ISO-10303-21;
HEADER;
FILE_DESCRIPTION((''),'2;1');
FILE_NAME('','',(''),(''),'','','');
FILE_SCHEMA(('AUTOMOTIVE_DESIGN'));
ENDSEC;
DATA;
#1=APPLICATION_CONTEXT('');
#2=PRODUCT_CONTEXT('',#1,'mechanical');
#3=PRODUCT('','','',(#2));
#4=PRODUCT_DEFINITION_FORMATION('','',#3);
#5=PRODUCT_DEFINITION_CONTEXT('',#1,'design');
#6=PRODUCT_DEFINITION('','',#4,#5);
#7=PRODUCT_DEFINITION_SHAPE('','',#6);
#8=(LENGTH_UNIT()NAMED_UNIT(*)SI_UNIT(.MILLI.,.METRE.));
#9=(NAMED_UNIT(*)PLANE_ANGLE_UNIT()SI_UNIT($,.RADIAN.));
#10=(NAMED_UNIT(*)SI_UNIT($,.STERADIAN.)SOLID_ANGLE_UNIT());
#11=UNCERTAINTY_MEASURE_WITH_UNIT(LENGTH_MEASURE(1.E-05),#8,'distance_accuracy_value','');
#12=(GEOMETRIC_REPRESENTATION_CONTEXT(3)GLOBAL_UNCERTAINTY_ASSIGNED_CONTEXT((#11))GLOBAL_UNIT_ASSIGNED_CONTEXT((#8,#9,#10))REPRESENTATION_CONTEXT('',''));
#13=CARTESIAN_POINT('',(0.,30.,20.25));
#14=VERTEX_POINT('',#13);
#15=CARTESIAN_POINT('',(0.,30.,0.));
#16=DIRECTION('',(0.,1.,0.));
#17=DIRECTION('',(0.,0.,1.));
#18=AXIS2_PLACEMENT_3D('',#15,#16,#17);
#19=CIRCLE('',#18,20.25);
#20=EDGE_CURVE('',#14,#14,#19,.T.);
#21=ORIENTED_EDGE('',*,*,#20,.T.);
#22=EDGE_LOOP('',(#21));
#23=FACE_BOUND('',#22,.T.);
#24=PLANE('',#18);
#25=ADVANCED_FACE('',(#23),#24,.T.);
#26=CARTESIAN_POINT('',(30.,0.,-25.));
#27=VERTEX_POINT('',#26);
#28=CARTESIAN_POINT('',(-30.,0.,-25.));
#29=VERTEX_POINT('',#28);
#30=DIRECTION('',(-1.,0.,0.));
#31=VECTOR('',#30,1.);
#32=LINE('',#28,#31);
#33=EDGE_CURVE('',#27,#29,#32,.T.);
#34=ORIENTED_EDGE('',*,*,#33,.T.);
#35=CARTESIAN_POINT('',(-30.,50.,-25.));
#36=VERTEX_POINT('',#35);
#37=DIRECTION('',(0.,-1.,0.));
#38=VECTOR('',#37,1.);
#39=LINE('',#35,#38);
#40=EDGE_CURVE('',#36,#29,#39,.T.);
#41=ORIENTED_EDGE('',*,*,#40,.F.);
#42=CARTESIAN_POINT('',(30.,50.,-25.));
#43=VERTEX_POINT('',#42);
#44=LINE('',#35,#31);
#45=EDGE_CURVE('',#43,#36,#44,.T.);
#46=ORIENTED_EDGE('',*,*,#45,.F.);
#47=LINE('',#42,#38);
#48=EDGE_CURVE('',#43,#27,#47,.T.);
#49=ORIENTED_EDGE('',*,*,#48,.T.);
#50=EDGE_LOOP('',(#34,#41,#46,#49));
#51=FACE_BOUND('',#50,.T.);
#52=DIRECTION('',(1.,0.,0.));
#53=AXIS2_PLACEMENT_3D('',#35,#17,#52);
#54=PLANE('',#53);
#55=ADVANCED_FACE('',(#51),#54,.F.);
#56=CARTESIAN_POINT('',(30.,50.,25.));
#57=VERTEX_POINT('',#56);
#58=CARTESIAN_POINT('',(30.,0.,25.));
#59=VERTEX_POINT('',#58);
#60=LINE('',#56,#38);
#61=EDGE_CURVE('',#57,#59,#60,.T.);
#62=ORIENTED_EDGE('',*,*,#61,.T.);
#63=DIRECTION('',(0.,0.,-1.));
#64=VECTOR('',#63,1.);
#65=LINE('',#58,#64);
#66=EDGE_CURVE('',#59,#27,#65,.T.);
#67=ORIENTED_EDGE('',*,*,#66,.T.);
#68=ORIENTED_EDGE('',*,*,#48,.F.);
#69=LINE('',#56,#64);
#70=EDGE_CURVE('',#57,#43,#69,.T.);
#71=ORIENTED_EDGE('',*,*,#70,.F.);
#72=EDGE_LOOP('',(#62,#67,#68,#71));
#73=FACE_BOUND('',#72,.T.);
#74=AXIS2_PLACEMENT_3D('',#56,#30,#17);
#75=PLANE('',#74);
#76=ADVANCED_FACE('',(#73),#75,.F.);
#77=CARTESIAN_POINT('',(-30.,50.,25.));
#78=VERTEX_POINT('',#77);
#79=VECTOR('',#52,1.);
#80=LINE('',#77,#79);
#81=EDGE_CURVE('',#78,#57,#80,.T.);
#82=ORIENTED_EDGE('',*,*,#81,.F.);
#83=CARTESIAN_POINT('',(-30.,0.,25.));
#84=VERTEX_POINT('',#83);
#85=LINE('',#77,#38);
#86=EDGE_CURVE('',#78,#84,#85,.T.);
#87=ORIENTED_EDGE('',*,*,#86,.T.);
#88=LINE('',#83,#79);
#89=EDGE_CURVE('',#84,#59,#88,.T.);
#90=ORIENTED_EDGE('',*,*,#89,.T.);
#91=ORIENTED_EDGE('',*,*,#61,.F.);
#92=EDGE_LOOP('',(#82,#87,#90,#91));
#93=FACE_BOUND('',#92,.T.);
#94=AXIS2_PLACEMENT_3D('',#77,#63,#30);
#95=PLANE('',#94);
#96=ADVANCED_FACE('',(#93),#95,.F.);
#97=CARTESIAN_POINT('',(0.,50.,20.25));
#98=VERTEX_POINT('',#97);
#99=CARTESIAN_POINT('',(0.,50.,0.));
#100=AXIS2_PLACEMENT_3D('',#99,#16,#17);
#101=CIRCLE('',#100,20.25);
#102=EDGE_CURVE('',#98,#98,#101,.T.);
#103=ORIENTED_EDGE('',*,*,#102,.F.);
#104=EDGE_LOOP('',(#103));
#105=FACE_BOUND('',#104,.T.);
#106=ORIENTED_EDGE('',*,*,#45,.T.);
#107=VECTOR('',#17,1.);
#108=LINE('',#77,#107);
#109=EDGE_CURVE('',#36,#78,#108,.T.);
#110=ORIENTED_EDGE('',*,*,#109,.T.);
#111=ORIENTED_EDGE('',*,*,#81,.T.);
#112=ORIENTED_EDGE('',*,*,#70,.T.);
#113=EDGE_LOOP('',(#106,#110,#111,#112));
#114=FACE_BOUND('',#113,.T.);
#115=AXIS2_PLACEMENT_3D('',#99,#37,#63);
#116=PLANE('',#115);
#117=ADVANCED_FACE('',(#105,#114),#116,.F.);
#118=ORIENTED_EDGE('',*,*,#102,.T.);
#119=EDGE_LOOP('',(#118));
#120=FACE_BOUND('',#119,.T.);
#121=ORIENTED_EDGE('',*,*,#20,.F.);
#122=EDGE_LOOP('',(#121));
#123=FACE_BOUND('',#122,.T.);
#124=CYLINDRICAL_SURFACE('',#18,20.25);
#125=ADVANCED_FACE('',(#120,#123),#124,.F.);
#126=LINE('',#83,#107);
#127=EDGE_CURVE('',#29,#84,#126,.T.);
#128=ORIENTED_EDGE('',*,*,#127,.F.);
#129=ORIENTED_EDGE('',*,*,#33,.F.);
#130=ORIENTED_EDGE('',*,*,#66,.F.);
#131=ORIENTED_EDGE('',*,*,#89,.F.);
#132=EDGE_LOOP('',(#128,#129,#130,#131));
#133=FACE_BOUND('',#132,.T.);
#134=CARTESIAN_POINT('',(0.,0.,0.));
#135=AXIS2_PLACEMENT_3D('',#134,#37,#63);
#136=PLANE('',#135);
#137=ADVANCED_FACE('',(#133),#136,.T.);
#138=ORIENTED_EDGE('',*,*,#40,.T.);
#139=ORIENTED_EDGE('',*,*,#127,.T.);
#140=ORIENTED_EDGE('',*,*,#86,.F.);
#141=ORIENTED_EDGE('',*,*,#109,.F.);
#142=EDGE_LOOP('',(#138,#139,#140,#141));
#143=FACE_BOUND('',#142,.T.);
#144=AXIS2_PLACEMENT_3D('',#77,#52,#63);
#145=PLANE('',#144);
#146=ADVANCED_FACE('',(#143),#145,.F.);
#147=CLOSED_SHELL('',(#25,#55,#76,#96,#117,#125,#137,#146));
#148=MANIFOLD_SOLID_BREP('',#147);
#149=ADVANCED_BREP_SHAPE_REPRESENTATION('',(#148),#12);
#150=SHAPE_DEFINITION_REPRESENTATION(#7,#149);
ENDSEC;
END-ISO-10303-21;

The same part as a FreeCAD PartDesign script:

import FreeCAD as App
import Part
import Sketcher
from FreeCAD import Vector


def add_polygon(sketch, points):
    """Adds a closed chain of lines whose ends are joined by coincident constraints."""
    first, n = sketch.GeometryCount, len(points)
    for a, b in zip(points, points[1:] + points[:1]):
        sketch.addGeometry(Part.LineSegment(App.Vector(*a, 0), App.Vector(*b, 0)), False)
    for i in range(n):
        sketch.addConstraint(Sketcher.Constraint("Coincident", first + i, 2, first + (i + 1) % n, 1))

doc = App.newDocument("Part")
params = doc.addObject("Spreadsheet::Sheet", "Params")
for row, (alias, value) in enumerate([
    ("sketch1_width", "60 mm"),
    ("sketch1_height", "50 mm"),
    ("pad1_length", "50 mm"),
    ("sketch2_diameter", "40.5 mm"),
    ("pocket1_length", "20 mm"),
], start=1):
    params.set(f"A{row}", alias)
    params.set(f"B{row}", "=" + value)
    params.setAlias(f"B{row}", alias)

body = doc.addObject("PartDesign::Body", "Body")

# Sketch on XZ plane
sketch1 = body.newObject("Sketcher::SketchObject", "Sketch")
sketch1.AttachmentSupport = (doc.getObject("XZ_Plane"), [""])
sketch1.MapMode = "FlatFace"
add_polygon(sketch1, [(-30, -25), (-30, 25), (30, 25), (30, -25)])  # lines 0-3
sketch1.addConstraint(Sketcher.Constraint("Vertical", 0))
sketch1.addConstraint(Sketcher.Constraint("Horizontal", 1))
sketch1.addConstraint(Sketcher.Constraint("Vertical", 2))
sketch1.addConstraint(Sketcher.Constraint("Horizontal", 3))
sketch1.addConstraint(Sketcher.Constraint("Symmetric", 0, 2, 2, 2, -1, 1))
sketch1.addConstraint(Sketcher.Constraint("DistanceX", 1, 1, 1, 2, 60.0))
sketch1.addConstraint(Sketcher.Constraint("DistanceY", 0, 1, 0, 2, 50.0))
sketch1.setExpression("Constraints[9]", "Params.sketch1_width")
sketch1.setExpression("Constraints[10]", "Params.sketch1_height")
pad1 = body.newObject("PartDesign::Pad", "Pad")
pad1.Profile = sketch1
pad1.setExpression("Length", "Params.pad1_length")
pad1.Reversed = True

# Sketch on XZ plane
sketch2 = body.newObject("Sketcher::SketchObject", "Sketch001")
sketch2.AttachmentSupport = (doc.getObject("XZ_Plane"), [""])
sketch2.MapMode = "FlatFace"
sketch2.AttachmentOffset = App.Placement(Vector(0, 0, -50), App.Rotation())
sketch2.addGeometry(Part.Circle(Vector(0, 0, 0), Vector(0, 0, 1), 20.25), False)
sketch2.addConstraint(Sketcher.Constraint("Coincident", 0, 3, -1, 1))
sketch2.addConstraint(Sketcher.Constraint("Diameter", 0, 40.5))
sketch2.setExpression("Constraints[1]", "Params.sketch2_diameter")
pocket1 = body.newObject("PartDesign::Pocket", "Pocket")
pocket1.Profile = sketch2
pocket1.setExpression("Length", "Params.pocket1_length")
pocket1.Reversed = True

doc.recompute()
